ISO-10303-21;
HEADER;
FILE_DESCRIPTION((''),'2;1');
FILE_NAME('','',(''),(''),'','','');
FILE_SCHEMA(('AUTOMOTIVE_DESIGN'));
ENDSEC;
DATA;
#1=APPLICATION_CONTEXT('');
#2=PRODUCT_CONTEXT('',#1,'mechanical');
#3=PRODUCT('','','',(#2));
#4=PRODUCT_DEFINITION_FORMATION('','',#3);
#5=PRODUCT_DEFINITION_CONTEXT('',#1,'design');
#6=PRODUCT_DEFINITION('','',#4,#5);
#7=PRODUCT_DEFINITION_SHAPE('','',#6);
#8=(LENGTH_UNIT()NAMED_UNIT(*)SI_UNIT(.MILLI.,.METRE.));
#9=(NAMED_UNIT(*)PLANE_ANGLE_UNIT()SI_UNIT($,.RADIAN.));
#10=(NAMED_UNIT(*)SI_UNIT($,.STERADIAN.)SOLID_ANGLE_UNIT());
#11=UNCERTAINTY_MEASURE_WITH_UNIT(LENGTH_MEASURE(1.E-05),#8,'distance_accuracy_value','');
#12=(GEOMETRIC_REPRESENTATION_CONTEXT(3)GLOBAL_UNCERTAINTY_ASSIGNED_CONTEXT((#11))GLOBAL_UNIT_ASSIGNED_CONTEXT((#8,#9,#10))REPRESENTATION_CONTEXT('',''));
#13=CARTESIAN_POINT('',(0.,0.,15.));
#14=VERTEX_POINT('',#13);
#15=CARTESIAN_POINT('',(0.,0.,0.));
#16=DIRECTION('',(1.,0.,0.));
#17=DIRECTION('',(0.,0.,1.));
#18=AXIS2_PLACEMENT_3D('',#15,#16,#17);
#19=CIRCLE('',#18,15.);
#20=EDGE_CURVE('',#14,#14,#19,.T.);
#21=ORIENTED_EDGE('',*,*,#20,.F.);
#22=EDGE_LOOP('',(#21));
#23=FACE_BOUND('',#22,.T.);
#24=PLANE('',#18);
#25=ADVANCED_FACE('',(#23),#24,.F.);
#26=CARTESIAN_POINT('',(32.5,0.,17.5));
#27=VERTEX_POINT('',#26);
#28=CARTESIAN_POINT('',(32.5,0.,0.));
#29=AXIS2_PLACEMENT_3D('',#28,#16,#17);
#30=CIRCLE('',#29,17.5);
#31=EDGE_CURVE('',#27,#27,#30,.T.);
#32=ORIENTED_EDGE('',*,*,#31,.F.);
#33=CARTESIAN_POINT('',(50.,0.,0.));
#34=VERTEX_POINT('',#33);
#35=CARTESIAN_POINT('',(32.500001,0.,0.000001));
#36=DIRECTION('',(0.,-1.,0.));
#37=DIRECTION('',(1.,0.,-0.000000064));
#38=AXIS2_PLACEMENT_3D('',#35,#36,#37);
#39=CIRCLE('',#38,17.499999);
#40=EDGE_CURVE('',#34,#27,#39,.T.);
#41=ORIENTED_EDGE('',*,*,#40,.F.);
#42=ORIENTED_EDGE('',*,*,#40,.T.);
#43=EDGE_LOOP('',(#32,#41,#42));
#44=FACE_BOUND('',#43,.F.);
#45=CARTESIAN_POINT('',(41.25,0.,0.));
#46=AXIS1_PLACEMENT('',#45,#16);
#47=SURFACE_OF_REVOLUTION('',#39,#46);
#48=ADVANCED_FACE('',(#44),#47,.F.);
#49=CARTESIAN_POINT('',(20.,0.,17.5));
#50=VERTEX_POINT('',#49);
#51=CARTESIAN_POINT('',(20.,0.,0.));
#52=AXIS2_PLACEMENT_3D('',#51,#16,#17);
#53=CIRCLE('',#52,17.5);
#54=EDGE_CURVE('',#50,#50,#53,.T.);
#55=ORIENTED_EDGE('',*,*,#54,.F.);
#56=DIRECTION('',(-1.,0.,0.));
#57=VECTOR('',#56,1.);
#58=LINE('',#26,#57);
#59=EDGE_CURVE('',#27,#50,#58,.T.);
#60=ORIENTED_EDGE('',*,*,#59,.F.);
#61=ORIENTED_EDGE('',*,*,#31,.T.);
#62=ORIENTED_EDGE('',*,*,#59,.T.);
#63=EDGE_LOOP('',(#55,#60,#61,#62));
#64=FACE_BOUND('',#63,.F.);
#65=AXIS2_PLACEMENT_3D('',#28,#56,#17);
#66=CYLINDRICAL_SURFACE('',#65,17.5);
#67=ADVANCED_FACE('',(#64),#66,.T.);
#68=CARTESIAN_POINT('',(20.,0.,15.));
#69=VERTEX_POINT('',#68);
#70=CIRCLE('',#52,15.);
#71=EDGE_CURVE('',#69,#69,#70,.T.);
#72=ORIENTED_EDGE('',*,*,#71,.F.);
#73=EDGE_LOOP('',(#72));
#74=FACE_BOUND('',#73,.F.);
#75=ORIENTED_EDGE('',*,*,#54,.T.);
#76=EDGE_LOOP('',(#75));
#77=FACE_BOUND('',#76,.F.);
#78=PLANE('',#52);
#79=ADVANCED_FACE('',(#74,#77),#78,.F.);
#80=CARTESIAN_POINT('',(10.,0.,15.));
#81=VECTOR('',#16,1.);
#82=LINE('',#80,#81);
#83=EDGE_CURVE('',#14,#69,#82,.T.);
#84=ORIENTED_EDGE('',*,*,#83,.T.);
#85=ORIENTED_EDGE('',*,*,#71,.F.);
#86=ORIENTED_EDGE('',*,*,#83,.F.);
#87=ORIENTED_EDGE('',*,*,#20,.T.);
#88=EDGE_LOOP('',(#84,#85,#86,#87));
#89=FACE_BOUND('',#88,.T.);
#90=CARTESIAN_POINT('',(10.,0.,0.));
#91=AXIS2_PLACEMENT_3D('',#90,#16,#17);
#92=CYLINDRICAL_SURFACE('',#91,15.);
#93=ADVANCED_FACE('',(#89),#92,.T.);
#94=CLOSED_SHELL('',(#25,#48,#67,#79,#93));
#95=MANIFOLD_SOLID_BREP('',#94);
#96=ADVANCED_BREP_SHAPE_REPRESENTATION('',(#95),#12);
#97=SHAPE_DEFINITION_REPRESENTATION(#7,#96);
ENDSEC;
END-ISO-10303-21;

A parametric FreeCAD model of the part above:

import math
import FreeCAD as App
import Part
import Sketcher
Q = App.Units.Quantity

doc = App.newDocument("Part")
body = doc.addObject("PartDesign::Body", "Body")

sketch1 = doc.addObject("Sketcher::SketchObject", "Sketch")
body.addObject(sketch1)
sketch1.AttachmentSupport = (doc.XZ_Plane, [""])
sketch1.MapMode = "FlatFace"
sketch1.addGeometry([
    Part.LineSegment(App.Vector(0, 15, 0), App.Vector(0, 0, 0)),
    Part.LineSegment(App.Vector(0, 0, 0), App.Vector(50, 0, 0)),
    Part.ArcOfCircle(Part.Circle(App.Vector(32.5, 0, 0), App.Vector(0, 0, 1), 17.5), math.radians(0), math.radians(90)),
    Part.LineSegment(App.Vector(32.5, 17.5, 0), App.Vector(20, 17.5, 0)),
    Part.LineSegment(App.Vector(20, 17.5, 0), App.Vector(20, 15, 0)),
    Part.LineSegment(App.Vector(20, 15, 0), App.Vector(0, 15, 0)),
], False)
sketch1.addConstraint([
    Sketcher.Constraint("Coincident", 0, 2, 1, 1),
    Sketcher.Constraint("Coincident", 1, 2, 2, 1),
    Sketcher.Constraint("Tangent", 2, 2, 3, 1),
    Sketcher.Constraint("Coincident", 3, 2, 4, 1),
    Sketcher.Constraint("Coincident", 4, 2, 5, 1),
    Sketcher.Constraint("Coincident", 5, 2, 0, 1),
    Sketcher.Constraint("Vertical", 0),
    Sketcher.Constraint("Horizontal", 1),
    Sketcher.Constraint("Horizontal", 3),
    Sketcher.Constraint("Vertical", 4),
    Sketcher.Constraint("Horizontal", 5),
    Sketcher.Constraint("Coincident", 0, 2, -1, 1),
    Sketcher.Constraint("PointOnObject", 2, 3, -1),
    Sketcher.Constraint("Radius", 2, Q("17.499999 mm")),
    Sketcher.Constraint("DistanceX", 1, 1, 1, 2, Q("50 mm")),
    Sketcher.Constraint("DistanceX", 5, 2, 5, 1, Q("20 mm")),
    Sketcher.Constraint("DistanceY", 0, 2, 0, 1, Q("15 mm")),
])
revolution = doc.addObject("PartDesign::Revolution", "Revolution")
body.addObject(revolution)
revolution.Profile = sketch1
revolution.ReferenceAxis = (sketch1, ["H_Axis"])
revolution.Angle = 360

doc.recompute()
